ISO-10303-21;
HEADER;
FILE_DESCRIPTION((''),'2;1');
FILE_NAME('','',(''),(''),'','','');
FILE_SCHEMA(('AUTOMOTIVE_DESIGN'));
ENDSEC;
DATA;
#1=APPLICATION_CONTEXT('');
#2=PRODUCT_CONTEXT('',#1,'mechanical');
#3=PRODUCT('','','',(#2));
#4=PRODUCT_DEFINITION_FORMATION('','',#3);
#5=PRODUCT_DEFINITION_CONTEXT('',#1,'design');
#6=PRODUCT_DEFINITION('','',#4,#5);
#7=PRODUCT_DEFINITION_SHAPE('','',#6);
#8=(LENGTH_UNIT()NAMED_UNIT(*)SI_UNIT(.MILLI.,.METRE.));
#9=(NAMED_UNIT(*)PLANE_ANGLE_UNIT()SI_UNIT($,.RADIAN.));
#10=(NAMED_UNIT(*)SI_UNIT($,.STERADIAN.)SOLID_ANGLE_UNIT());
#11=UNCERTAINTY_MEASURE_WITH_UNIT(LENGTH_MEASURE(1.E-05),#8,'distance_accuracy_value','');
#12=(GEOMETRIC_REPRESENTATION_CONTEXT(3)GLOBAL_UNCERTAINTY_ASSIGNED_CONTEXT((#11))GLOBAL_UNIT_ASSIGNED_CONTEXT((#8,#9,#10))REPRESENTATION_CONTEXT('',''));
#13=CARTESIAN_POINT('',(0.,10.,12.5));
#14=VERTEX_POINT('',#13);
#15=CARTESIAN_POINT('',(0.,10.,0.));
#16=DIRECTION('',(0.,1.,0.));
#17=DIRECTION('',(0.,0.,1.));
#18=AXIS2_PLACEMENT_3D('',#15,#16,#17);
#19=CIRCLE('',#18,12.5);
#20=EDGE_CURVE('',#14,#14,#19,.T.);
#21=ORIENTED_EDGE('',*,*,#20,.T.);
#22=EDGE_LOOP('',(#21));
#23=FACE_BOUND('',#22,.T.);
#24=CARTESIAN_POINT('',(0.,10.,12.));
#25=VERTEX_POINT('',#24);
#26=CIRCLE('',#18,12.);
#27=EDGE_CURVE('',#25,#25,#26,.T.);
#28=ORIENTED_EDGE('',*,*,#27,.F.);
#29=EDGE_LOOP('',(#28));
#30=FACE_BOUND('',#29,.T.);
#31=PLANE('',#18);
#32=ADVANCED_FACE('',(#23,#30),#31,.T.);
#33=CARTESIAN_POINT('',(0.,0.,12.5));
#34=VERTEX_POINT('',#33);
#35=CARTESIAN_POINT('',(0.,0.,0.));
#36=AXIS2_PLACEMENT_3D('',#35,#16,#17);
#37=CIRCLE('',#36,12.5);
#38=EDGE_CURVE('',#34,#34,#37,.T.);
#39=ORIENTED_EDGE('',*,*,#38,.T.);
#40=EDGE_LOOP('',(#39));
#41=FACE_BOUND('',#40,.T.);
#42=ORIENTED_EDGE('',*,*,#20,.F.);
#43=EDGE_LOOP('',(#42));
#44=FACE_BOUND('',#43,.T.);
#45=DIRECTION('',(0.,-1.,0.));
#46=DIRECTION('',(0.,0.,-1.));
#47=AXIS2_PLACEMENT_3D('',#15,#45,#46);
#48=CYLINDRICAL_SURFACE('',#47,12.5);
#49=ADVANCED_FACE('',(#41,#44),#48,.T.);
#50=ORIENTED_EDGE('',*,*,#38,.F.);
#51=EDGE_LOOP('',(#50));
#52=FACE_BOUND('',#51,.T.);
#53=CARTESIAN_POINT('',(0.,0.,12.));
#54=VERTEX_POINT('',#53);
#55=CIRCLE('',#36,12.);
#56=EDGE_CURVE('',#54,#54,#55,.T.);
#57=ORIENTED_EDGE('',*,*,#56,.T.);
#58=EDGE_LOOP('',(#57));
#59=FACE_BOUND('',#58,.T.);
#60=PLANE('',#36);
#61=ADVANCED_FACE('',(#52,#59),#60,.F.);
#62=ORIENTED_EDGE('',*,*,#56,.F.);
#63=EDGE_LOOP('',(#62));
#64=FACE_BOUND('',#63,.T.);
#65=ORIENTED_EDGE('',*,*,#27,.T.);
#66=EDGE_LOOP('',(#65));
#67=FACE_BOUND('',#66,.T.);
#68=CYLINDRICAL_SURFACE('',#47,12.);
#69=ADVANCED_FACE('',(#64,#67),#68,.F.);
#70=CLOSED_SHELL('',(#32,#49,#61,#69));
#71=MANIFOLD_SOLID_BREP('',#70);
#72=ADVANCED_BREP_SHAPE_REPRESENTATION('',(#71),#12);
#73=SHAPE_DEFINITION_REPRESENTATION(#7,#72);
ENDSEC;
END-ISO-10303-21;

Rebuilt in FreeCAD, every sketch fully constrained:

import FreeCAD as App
import Part
import Sketcher
from FreeCAD import Vector
Q = App.Units.Quantity

doc = App.newDocument("Part")
body = doc.addObject("PartDesign::Body", "Body")

# Sketch on XZ plane
sketch1 = body.newObject("Sketcher::SketchObject", "Sketch")
sketch1.AttachmentSupport = (doc.getObject("XZ_Plane"), [""])
sketch1.MapMode = "FlatFace"
sketch1.addGeometry(Part.Circle(Vector(0, 0, 0), Vector(0, 0, 1), 12), False)
sketch1.addGeometry(Part.Circle(Vector(0, 0, 0), Vector(0, 0, 1), 12), False)
sketch1.addConstraint(Sketcher.Constraint("Coincident", 0, 3, -1, 1))
sketch1.addConstraint(Sketcher.Constraint("Coincident", 1, 3, -1, 1))
sketch1.addConstraint(Sketcher.Constraint("Diameter", 0, Q("25 mm")))
sketch1.addConstraint(Sketcher.Constraint("Diameter", 1, Q("24 mm")))
pad1 = body.newObject("PartDesign::Pad", "Pad")
pad1.Profile = sketch1
pad1.Length = 10
pad1.Reversed = True

doc.recompute()
